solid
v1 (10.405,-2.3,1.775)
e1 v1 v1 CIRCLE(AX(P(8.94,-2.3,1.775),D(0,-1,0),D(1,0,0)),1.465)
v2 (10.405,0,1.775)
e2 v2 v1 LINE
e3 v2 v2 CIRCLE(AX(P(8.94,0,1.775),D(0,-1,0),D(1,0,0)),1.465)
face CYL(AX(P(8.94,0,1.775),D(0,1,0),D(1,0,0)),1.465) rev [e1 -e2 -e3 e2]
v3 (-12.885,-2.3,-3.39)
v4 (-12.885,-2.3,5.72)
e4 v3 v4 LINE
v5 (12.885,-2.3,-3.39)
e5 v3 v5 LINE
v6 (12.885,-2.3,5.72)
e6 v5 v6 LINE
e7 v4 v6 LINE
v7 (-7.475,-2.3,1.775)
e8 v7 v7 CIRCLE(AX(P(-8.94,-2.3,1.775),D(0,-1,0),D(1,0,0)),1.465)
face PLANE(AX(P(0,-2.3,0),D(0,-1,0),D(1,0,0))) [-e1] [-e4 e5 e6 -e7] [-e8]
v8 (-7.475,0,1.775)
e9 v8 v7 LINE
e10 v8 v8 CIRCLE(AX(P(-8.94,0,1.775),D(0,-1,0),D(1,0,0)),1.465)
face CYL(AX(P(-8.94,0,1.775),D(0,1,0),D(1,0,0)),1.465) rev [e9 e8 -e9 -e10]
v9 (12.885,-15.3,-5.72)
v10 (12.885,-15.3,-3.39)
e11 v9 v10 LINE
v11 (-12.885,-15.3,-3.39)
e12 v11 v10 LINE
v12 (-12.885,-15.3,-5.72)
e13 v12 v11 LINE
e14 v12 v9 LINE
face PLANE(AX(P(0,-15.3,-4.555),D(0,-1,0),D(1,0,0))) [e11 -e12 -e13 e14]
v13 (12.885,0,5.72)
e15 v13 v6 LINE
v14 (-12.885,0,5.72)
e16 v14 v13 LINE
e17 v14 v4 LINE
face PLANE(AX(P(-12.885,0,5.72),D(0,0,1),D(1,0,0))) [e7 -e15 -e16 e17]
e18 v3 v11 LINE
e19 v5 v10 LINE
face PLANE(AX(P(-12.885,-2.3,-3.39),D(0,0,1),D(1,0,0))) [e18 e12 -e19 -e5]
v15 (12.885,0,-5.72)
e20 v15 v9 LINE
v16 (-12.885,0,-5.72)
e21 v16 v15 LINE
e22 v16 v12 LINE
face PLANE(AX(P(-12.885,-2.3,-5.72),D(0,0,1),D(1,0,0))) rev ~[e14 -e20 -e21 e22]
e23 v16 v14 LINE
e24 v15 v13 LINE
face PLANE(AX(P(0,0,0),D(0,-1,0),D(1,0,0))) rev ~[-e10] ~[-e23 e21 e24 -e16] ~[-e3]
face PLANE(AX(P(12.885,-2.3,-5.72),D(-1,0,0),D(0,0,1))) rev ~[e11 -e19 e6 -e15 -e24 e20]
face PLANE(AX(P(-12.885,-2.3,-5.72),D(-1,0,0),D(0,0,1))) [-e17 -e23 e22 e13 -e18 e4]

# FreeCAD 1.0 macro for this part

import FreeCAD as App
import Part
import Sketcher
from FreeCAD import Vector


def add_polygon(sketch, points):
    """Adds a closed chain of lines whose ends are joined by coincident constraints."""
    first, n = sketch.GeometryCount, len(points)
    for a, b in zip(points, points[1:] + points[:1]):
        sketch.addGeometry(Part.LineSegment(App.Vector(*a, 0), App.Vector(*b, 0)), False)
    for i in range(n):
        sketch.addConstraint(Sketcher.Constraint("Coincident", first + i, 2, first + (i + 1) % n, 1))

doc = App.newDocument("Part")
body = doc.addObject("PartDesign::Body", "Body")

sketch1 = body.newObject("Sketcher::SketchObject", "Sketch")
sketch1.AttachmentSupport = (doc.getObject("XZ_Plane"), [""])
sketch1.MapMode = "FlatFace"
add_polygon(sketch1, [(-12.9, 5.7), (-12.9, -5.7), (12.9, -5.7), (12.9, 5.7)])
sketch1.addGeometry(Part.Circle(Vector(-8.9, 1.8, 0), Vector(0, 0, 1), 1.5), False)
sketch1.addGeometry(Part.Circle(Vector(8.9, 1.8, 0), Vector(0, 0, 1), 1.5), False)
sketch1.addConstraint(Sketcher.Constraint("Vertical", 0))
sketch1.addConstraint(Sketcher.Constraint("Horizontal", 1))
sketch1.addConstraint(Sketcher.Constraint("Vertical", 2))
sketch1.addConstraint(Sketcher.Constraint("Horizontal", 3))
sketch1.addConstraint(Sketcher.Constraint("Equal", 4, 5))
sketch1.addConstraint(Sketcher.Constraint("Symmetric", 0, 2, 2, 2, -1, 1))
sketch1.addConstraint(Sketcher.Constraint("Symmetric", 4, 3, 5, 3, -2))
sketch1.addConstraint(Sketcher.Constraint("Diameter", 4, 2.93))
sketch1.addConstraint(Sketcher.Constraint("DistanceX", 1, 1, 1, 2, 25.77))
sketch1.addConstraint(Sketcher.Constraint("DistanceY", 0, 2, 0, 1, 11.44))
sketch1.addConstraint(Sketcher.Constraint("DistanceX", 4, 3, -1, 1, 8.94))
sketch1.addConstraint(Sketcher.Constraint("DistanceY", -1, 1, 4, 3, 1.775))
pad1 = body.newObject("PartDesign::Pad", "Pad")
pad1.Profile = sketch1
pad1.Length = 2.3

sketch2 = body.newObject("Sketcher::SketchObject", "Sketch001")
sketch2.AttachmentSupport = (doc.getObject("XZ_Plane"), [""])
sketch2.MapMode = "FlatFace"
sketch2.AttachmentOffset = App.Placement(Vector(0, 0, 2.3), App.Rotation())
add_polygon(sketch2, [(-12.9, -3.4), (-12.9, -5.7), (12.9, -5.7), (12.9, -3.4)])
sketch2.addConstraint(Sketcher.Constraint("Vertical", 0))
sketch2.addConstraint(Sketcher.Constraint("Horizontal", 1))
sketch2.addConstraint(Sketcher.Constraint("Vertical", 2))
sketch2.addConstraint(Sketcher.Constraint("Horizontal", 3))
sketch2.addConstraint(Sketcher.Constraint("DistanceX", 1, 1, 1, 2, 25.77))
sketch2.addConstraint(Sketcher.Constraint("DistanceY", 0, 2, 0, 1, 2.33))
sketch2.addConstraint(Sketcher.Constraint("DistanceY", 0, 2, -1, 1, 5.72))
sketch2.addConstraint(Sketcher.Constraint("DistanceX", 0, 2, -1, 1, 12.885))
pad2 = body.newObject("PartDesign::Pad", "Pad001")
pad2.Profile = sketch2
pad2.Length = 13

doc.recompute()
